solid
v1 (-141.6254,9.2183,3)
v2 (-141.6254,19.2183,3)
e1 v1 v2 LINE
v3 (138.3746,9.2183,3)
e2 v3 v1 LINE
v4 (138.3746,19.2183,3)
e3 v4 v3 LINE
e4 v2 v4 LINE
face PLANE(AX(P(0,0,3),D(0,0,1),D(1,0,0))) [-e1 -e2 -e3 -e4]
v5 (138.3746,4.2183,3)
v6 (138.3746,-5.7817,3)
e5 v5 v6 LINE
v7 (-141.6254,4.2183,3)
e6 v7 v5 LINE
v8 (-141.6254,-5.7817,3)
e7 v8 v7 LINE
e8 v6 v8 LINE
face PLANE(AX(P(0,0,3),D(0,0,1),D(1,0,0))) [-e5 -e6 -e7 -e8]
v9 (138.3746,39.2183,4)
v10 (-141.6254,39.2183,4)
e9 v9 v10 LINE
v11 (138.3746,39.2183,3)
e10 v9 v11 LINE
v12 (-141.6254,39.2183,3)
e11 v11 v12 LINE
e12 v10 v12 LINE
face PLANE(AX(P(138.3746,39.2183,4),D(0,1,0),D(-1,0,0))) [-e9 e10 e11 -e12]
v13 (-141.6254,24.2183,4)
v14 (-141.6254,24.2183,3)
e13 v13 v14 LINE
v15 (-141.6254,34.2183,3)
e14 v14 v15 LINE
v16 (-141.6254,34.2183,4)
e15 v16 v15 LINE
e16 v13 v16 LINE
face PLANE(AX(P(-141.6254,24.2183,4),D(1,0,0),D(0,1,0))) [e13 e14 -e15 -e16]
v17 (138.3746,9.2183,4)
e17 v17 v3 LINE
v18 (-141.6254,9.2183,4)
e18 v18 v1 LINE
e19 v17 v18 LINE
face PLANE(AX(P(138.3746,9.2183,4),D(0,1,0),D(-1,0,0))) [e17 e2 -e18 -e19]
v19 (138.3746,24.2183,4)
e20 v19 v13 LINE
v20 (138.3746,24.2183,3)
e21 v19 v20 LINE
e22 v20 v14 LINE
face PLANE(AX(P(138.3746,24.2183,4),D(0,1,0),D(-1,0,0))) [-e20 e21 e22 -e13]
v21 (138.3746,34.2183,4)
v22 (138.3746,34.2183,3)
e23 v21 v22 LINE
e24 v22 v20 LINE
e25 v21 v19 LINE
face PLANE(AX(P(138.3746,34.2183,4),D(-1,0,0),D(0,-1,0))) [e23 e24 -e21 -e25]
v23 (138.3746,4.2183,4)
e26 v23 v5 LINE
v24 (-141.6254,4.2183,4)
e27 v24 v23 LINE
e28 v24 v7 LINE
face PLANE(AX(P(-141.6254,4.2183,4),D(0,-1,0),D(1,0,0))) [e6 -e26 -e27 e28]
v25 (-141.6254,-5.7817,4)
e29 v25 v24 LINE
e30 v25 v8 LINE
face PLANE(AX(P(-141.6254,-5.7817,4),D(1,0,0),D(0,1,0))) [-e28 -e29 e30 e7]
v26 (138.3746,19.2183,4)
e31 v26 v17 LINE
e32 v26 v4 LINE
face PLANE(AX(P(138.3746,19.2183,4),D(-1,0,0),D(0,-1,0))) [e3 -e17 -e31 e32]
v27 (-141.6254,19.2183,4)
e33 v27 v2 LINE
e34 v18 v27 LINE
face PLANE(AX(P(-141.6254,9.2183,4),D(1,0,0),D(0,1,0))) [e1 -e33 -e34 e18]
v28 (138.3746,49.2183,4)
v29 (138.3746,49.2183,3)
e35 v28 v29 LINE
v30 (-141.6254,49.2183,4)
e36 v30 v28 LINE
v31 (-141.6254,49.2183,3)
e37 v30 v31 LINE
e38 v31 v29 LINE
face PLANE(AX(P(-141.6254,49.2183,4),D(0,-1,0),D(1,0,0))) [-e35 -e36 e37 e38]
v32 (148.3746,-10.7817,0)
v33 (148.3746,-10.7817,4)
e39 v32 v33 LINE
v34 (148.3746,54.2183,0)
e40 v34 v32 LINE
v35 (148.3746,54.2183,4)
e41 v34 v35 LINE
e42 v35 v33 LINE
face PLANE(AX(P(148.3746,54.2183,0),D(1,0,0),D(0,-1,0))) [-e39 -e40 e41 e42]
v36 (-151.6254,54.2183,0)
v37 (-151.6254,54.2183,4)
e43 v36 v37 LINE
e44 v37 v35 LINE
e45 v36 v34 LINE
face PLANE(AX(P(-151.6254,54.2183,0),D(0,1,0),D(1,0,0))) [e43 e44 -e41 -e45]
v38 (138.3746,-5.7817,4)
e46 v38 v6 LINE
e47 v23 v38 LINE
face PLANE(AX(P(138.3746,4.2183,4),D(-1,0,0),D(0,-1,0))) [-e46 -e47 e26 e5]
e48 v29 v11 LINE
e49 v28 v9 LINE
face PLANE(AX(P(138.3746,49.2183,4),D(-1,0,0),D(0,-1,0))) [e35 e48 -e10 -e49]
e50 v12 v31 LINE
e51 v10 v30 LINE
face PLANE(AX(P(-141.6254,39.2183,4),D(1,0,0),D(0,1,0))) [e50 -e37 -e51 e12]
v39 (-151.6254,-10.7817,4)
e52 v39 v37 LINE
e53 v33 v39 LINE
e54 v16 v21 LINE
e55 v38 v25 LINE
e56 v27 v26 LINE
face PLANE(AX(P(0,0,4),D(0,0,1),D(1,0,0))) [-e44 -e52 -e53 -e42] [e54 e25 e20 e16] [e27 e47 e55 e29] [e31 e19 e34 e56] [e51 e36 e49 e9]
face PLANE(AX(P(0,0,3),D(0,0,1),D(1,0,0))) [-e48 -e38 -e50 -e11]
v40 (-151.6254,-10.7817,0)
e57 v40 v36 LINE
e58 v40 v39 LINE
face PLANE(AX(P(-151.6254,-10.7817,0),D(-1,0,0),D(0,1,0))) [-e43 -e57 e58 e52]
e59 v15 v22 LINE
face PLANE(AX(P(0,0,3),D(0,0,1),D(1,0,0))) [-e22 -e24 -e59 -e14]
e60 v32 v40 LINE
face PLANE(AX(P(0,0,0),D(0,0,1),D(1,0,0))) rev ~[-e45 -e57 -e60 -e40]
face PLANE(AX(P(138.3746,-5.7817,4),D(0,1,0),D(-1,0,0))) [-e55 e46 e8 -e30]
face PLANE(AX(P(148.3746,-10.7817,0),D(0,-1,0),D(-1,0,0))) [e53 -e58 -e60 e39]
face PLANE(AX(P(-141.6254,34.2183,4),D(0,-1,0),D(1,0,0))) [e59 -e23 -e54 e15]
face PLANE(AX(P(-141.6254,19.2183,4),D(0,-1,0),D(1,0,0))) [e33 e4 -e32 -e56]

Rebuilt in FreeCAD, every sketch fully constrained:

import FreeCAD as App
import Part
import Sketcher

V = App.Vector


def add_polygon(sketch, points):
    """Adds a closed chain of lines whose ends are joined by coincident constraints."""
    first, n = sketch.GeometryCount, len(points)
    for a, b in zip(points, points[1:] + points[:1]):
        sketch.addGeometry(Part.LineSegment(App.Vector(*a, 0), App.Vector(*b, 0)), False)
    for i in range(n):
        sketch.addConstraint(Sketcher.Constraint("Coincident", first + i, 2, first + (i + 1) % n, 1))

doc = App.newDocument("Part")
body = doc.addObject("PartDesign::Body", "Body")

# Sketch on XY plane
sketch1 = doc.addObject("Sketcher::SketchObject", "Sketch")
body.addObject(sketch1)
sketch1.AttachmentSupport = (doc.XY_Plane, [""])
sketch1.MapMode = "FlatFace"
add_polygon(sketch1, [(148.3746, 54.2183), (-151.6254, 54.2183), (-151.6254, -10.7817), (148.3746, -10.7817)])  # lines 0-3
sketch1.addConstraint(Sketcher.Constraint("Horizontal", 0))
sketch1.addConstraint(Sketcher.Constraint("Vertical", 1))
sketch1.addConstraint(Sketcher.Constraint("Horizontal", 2))
sketch1.addConstraint(Sketcher.Constraint("Vertical", 3))
sketch1.addConstraint(Sketcher.Constraint("DistanceX", 0, 2, 0, 1, 300.0))
sketch1.addConstraint(Sketcher.Constraint("DistanceY", 1, 2, 1, 1, 65.0))
sketch1.addConstraint(Sketcher.Constraint("DistanceX", 0, 2, -1, 1, 151.6254))
sketch1.addConstraint(Sketcher.Constraint("DistanceY", -1, 1, 0, 2, 54.2183))
pad1 = doc.addObject("PartDesign::Pad", "Pad")
body.addObject(pad1)
pad1.Profile = sketch1
pad1.Length = 4

# Sketch on XY plane
sketch2 = doc.addObject("Sketcher::SketchObject", "Sketch001")
body.addObject(sketch2)
sketch2.AttachmentSupport = (doc.XY_Plane, [""])
sketch2.MapMode = "FlatFace"
sketch2.AttachmentOffset = App.Placement(V(0, 0, 4), App.Rotation())
add_polygon(sketch2, [(138.3746, 49.2183), (-141.6254, 49.2183), (-141.6254, 39.2183), (138.3746, 39.2183)])  # lines 0-3
add_polygon(sketch2, [(138.3746, 34.2183), (-141.6254, 34.2183), (-141.6254, 24.2183), (138.3746, 24.2183)])  # lines 4-7
add_polygon(sketch2, [(138.3746, 19.2183), (-141.6254, 19.2183), (-141.6254, 9.2183), (138.3746, 9.2183)])  # lines 8-11
add_polygon(sketch2, [(138.3746, 4.2183), (-141.6254, 4.2183), (-141.6254, -5.7817), (138.3746, -5.7817)])  # lines 12-15
sketch2.addConstraint(Sketcher.Constraint("Horizontal", 0))
sketch2.addConstraint(Sketcher.Constraint("Vertical", 1))
sketch2.addConstraint(Sketcher.Constraint("Horizontal", 2))
sketch2.addConstraint(Sketcher.Constraint("Vertical", 3))
sketch2.addConstraint(Sketcher.Constraint("Horizontal", 4))
sketch2.addConstraint(Sketcher.Constraint("Vertical", 5))
sketch2.addConstraint(Sketcher.Constraint("Horizontal", 6))
sketch2.addConstraint(Sketcher.Constraint("Vertical", 7))
sketch2.addConstraint(Sketcher.Constraint("Horizontal", 8))
sketch2.addConstraint(Sketcher.Constraint("Vertical", 9))
sketch2.addConstraint(Sketcher.Constraint("Horizontal", 10))
sketch2.addConstraint(Sketcher.Constraint("Vertical", 11))
sketch2.addConstraint(Sketcher.Constraint("Horizontal", 12))
sketch2.addConstraint(Sketcher.Constraint("Vertical", 13))
sketch2.addConstraint(Sketcher.Constraint("Horizontal", 14))
sketch2.addConstraint(Sketcher.Constraint("Vertical", 15))
sketch2.addConstraint(Sketcher.Constraint("Vertical", 1, 2, 4, 2))
sketch2.addConstraint(Sketcher.Constraint("Vertical", 3, 2, 6, 2))
sketch2.addConstraint(Sketcher.Constraint("Vertical", 5, 2, 8, 2))
sketch2.addConstraint(Sketcher.Constraint("Vertical", 7, 2, 10, 2))
sketch2.addConstraint(Sketcher.Constraint("Vertical", 9, 2, 12, 2))
sketch2.addConstraint(Sketcher.Constraint("Vertical", 11, 2, 14, 2))
sketch2.addConstraint(Sketcher.Constraint("Equal", 3, 5))
sketch2.addConstraint(Sketcher.Constraint("Equal", 7, 9))
sketch2.addConstraint(Sketcher.Constraint("Equal", 11, 13))
sketch2.addConstraint(Sketcher.Constraint("DistanceX", 0, 2, 0, 1, 280.0))
sketch2.addConstraint(Sketcher.Constraint("DistanceY", 1, 2, 1, 1, 10.0))
sketch2.addConstraint(Sketcher.Constraint("DistanceY", 4, 2, 1, 2, 5.0))
sketch2.addConstraint(Sketcher.Constraint("DistanceY", 8, 2, 5, 2, 5.0))
sketch2.addConstraint(Sketcher.Constraint("DistanceY", 12, 2, 9, 2, 5.0))
sketch2.addConstraint(Sketcher.Constraint("DistanceX", 0, 2, -1, 1, 141.6254))
sketch2.addConstraint(Sketcher.Constraint("DistanceY", -1, 1, 0, 2, 49.2183))
pocket1 = doc.addObject("PartDesign::Pocket", "Pocket")
body.addObject(pocket1)
pocket1.Profile = sketch2
pocket1.Length = 1

doc.recompute()
